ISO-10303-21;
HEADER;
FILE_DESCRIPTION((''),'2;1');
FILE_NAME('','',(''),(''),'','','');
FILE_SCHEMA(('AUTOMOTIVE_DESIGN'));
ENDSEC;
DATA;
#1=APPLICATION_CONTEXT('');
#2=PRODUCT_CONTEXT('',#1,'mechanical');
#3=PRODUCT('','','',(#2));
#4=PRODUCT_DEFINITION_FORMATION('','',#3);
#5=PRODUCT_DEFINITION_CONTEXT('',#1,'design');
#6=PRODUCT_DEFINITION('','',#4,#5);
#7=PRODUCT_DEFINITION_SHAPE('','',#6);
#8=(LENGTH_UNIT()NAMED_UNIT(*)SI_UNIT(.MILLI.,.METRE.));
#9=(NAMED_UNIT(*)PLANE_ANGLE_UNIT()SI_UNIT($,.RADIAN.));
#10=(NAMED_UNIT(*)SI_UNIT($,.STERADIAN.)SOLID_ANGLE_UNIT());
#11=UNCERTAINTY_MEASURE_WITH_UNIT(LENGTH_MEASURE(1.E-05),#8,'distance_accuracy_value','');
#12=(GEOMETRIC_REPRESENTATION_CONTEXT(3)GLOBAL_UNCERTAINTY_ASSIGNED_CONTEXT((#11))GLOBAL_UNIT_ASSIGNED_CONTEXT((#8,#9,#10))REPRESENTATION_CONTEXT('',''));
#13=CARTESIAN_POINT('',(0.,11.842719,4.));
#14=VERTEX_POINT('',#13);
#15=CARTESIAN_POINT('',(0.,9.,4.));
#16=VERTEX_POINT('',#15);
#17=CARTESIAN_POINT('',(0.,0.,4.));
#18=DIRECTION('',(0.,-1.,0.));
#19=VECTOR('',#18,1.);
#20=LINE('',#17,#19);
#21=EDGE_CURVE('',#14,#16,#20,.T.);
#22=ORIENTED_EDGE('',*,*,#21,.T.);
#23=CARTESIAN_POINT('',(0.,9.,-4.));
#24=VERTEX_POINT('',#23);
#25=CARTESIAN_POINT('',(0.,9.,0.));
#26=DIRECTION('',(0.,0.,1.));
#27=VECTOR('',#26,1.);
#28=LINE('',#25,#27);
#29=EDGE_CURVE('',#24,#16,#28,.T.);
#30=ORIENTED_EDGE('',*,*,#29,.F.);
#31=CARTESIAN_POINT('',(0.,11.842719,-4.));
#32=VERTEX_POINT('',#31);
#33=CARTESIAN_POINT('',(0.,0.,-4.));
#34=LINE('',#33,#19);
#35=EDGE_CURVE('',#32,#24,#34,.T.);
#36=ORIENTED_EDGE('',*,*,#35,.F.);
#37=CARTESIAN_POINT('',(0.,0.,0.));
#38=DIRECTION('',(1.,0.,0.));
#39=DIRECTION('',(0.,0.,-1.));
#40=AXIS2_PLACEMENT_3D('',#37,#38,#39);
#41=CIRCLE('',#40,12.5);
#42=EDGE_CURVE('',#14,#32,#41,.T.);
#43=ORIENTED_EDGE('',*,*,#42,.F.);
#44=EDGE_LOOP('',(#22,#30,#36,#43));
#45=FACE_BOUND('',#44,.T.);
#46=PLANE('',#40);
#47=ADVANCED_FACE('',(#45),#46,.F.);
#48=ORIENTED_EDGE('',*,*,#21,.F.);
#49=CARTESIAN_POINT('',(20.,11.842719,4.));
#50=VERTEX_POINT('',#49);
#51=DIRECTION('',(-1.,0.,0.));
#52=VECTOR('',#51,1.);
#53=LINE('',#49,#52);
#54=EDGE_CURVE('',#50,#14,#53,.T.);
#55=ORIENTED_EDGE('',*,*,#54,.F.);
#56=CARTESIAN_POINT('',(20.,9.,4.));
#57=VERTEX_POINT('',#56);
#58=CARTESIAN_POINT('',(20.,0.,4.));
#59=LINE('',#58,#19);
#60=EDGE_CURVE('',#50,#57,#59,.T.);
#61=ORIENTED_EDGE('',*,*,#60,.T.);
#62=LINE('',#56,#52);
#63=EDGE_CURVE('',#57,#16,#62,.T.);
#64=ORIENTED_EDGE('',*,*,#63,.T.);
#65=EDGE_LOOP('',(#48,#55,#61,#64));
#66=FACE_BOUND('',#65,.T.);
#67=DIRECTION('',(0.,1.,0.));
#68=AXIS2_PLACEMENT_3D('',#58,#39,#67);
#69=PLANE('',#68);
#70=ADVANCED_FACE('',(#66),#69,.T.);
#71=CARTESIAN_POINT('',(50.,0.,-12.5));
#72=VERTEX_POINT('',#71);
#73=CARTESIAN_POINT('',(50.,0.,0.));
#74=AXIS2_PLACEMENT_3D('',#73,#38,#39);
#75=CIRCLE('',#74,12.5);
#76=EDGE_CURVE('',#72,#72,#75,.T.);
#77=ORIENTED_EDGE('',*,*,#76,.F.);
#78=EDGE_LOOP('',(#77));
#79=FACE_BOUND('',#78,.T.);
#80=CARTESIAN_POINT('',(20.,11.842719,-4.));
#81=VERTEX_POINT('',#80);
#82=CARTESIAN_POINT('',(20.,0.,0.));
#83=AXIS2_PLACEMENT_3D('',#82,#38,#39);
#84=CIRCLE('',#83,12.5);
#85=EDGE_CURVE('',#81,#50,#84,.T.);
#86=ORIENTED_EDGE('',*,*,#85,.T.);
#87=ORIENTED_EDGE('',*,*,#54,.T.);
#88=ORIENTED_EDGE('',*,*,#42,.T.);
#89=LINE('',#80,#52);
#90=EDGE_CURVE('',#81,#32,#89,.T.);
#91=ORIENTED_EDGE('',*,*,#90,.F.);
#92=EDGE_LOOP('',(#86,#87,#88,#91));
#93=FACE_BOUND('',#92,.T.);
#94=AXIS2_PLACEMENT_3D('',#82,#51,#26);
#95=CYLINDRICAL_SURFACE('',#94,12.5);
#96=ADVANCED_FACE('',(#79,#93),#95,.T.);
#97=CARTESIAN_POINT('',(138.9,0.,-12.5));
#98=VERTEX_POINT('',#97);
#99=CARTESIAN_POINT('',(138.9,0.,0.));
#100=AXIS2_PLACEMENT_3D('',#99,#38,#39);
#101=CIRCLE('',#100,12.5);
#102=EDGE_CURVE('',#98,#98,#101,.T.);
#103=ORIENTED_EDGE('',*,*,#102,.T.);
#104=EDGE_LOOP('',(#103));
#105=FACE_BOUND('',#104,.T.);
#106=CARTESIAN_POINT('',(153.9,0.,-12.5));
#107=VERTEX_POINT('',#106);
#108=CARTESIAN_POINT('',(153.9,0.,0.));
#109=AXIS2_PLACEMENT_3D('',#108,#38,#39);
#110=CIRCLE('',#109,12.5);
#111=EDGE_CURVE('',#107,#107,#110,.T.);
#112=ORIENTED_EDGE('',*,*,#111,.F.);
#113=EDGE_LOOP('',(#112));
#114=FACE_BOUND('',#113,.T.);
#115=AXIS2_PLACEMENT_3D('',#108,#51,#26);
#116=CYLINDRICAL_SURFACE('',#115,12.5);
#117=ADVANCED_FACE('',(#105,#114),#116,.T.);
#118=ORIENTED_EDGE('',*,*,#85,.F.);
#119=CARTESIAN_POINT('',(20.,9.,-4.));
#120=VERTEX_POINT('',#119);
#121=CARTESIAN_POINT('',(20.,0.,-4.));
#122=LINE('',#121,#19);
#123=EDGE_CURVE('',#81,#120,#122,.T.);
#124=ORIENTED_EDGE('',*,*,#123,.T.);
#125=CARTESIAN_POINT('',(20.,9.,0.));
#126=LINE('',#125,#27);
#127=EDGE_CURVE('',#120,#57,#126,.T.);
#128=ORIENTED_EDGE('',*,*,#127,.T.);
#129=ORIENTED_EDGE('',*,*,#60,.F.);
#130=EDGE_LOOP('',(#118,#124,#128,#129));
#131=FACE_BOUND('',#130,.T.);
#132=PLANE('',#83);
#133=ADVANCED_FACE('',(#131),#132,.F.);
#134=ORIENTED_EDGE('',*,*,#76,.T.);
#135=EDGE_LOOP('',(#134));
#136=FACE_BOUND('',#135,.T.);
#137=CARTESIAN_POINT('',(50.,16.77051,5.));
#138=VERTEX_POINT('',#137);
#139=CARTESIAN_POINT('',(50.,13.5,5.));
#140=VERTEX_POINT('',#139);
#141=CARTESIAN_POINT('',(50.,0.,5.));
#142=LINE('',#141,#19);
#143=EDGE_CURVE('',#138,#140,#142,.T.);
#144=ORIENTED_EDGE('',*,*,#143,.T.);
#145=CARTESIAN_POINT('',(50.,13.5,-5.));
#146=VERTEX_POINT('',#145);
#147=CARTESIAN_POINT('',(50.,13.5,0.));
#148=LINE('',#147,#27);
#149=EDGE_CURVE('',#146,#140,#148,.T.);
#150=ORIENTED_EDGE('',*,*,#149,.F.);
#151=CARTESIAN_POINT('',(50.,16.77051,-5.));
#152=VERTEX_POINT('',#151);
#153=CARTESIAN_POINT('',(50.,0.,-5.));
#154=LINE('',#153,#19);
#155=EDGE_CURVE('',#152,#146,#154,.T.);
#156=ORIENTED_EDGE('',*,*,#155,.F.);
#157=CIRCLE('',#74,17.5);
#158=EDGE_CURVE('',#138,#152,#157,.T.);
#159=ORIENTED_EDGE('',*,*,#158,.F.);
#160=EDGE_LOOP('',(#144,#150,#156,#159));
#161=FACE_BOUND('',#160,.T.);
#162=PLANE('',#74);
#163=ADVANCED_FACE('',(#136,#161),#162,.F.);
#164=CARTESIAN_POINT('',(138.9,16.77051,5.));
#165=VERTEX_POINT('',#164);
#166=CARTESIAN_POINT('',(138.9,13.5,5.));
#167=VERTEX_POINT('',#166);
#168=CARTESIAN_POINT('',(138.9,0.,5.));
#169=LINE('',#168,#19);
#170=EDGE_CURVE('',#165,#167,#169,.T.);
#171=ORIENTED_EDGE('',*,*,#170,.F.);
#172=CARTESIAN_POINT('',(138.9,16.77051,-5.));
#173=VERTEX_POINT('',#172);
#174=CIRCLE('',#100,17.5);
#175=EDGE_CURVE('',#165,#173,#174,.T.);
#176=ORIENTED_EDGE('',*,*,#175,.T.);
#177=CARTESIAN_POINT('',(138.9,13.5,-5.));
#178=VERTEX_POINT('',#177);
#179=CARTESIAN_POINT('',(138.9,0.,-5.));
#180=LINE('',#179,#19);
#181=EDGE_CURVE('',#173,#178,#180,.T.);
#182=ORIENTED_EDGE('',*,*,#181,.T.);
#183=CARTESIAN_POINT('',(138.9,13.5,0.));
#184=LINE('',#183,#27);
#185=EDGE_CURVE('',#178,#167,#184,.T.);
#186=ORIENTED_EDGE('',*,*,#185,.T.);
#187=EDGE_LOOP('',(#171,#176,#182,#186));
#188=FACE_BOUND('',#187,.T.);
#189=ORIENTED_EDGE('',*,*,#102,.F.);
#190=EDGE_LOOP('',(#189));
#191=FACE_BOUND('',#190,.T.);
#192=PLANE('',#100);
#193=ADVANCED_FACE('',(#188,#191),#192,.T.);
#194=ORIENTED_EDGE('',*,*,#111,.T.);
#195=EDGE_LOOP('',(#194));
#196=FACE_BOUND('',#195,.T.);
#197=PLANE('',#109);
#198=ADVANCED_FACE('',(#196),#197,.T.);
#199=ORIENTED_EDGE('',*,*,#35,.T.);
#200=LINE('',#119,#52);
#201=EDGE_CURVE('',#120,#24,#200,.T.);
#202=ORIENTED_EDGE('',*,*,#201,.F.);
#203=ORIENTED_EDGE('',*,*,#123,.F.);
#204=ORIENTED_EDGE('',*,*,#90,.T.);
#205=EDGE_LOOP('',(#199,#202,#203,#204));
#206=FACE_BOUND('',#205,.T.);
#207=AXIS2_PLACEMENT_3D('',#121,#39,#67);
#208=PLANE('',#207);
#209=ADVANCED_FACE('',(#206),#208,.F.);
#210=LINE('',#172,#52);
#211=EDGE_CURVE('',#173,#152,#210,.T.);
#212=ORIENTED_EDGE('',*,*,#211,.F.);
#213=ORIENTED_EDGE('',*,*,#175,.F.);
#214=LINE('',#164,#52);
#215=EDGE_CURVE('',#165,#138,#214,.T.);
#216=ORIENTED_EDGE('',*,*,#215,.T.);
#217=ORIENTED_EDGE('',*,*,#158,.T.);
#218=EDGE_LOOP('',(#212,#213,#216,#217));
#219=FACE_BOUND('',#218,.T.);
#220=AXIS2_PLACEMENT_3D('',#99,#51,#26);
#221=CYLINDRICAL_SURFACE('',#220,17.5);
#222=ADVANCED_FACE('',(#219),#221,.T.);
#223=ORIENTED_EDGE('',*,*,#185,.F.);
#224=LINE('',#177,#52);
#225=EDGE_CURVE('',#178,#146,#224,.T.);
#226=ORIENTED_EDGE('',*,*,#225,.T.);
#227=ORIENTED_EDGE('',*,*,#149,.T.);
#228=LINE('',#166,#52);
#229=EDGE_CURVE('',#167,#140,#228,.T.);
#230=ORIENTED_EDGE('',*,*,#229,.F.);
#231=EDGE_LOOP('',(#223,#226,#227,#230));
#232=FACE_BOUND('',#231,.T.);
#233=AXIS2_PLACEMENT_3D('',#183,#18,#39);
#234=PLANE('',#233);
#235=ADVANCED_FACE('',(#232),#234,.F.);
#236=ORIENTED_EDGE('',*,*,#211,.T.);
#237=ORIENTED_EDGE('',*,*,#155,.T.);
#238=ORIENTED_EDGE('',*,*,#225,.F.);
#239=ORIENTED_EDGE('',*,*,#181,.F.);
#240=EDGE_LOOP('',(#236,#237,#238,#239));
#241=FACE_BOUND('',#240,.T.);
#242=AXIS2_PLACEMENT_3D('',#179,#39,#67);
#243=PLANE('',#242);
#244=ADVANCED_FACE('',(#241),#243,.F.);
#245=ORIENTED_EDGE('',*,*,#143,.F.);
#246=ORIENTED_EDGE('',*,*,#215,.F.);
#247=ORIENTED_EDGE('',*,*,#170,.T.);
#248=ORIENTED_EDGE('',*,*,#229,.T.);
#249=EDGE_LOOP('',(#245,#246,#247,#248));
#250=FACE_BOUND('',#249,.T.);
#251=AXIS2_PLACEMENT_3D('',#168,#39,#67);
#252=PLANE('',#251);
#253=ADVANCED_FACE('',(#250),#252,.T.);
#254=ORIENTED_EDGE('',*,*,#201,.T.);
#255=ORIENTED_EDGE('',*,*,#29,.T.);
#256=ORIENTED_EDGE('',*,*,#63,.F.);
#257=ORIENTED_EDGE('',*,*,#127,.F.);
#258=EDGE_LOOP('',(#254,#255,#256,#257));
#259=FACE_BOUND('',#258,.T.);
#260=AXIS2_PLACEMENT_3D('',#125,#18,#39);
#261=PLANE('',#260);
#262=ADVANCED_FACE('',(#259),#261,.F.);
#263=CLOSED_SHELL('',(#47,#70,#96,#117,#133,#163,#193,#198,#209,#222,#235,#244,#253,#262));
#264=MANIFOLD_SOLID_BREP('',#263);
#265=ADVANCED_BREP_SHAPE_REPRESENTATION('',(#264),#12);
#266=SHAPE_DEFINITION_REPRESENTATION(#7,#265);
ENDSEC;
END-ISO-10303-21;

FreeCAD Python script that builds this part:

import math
import FreeCAD as App
import Part
import Sketcher
from FreeCAD import Vector

doc = App.newDocument("Part")
body = doc.addObject("PartDesign::Body", "Body")

sketch1 = doc.addObject("Sketcher::SketchObject", "Sketch")
body.addObject(sketch1)
sketch1.AttachmentSupport = (doc.YZ_Plane, [""])
sketch1.MapMode = "FlatFace"
sketch1.addGeometry([
    Part.ArcOfCircle(Part.Circle(Vector(0, 0, 0), Vector(0, 0, 1), 12.5), math.radians(-90), math.radians(-19)),
    Part.LineSegment(Vector(11.8, -4, 0), Vector(9, -4, 0)),
    Part.LineSegment(Vector(9, -4, 0), Vector(9, 4, 0)),
    Part.LineSegment(Vector(9, 4, 0), Vector(11.8, 4, 0)),
    Part.ArcOfCircle(Part.Circle(Vector(0, 0, 0), Vector(0, 0, 1), 12.5), math.radians(19), math.radians(270)),
], False)
sketch1.addConstraint([
    Sketcher.Constraint("Coincident", 0, 2, 1, 1),
    Sketcher.Constraint("Coincident", 1, 2, 2, 1),
    Sketcher.Constraint("Coincident", 2, 2, 3, 1),
    Sketcher.Constraint("Coincident", 3, 2, 4, 1),
    Sketcher.Constraint("Tangent", 4, 2, 0, 1),
    Sketcher.Constraint("Horizontal", 1),
    Sketcher.Constraint("Vertical", 2),
    Sketcher.Constraint("Horizontal", 3),
    Sketcher.Constraint("Coincident", 0, 3, -1, 1),
    Sketcher.Constraint("Equal", 0, 4),
    Sketcher.Constraint("PointOnObject", 4, 2, -2),
    Sketcher.Constraint("Vertical", 0, 2, 3, 2),
    Sketcher.Constraint("Radius", 0, 12.5),
    Sketcher.Constraint("DistanceY", 2, 1, 2, 2, 8.0),
    Sketcher.Constraint("DistanceX", -1, 1, 1, 2, 9.0),
])
pad1 = doc.addObject("PartDesign::Pad", "Pad")
body.addObject(pad1)
pad1.Profile = sketch1
pad1.Length = 20

sketch2 = doc.addObject("Sketcher::SketchObject", "Sketch001")
body.addObject(sketch2)
sketch2.AttachmentSupport = (doc.YZ_Plane, [""])
sketch2.MapMode = "FlatFace"
sketch2.AttachmentOffset = App.Placement(Vector(0, 0, 20), App.Rotation())
sketch2.addGeometry(Part.Circle(Vector(0, 0, 0), Vector(0, 0, 1), 12), False)
sketch2.addConstraint([
    Sketcher.Constraint("Coincident", 0, 3, -1, 1),
    Sketcher.Constraint("Diameter", 0, 25.0),
])
pad2 = doc.addObject("PartDesign::Pad", "Pad001")
body.addObject(pad2)
pad2.Profile = sketch2
pad2.Length = 10

sketch3 = doc.addObject("Sketcher::SketchObject", "Sketch002")
body.addObject(sketch3)
sketch3.AttachmentSupport = (doc.YZ_Plane, [""])
sketch3.MapMode = "FlatFace"
sketch3.AttachmentOffset = App.Placement(Vector(0, 0, 30), App.Rotation())
sketch3.addGeometry(Part.Circle(Vector(0, 0, 0), Vector(0, 0, 1), 12), False)
sketch3.addConstraint([
    Sketcher.Constraint("Coincident", 0, 3, -1, 1),
    Sketcher.Constraint("Diameter", 0, 25.0),
])
pad3 = doc.addObject("PartDesign::Pad", "Pad002")
body.addObject(pad3)
pad3.Profile = sketch3
pad3.Length = 20

sketch4 = doc.addObject("Sketcher::SketchObject", "Sketch003")
body.addObject(sketch4)
sketch4.AttachmentSupport = (doc.YZ_Plane, [""])
sketch4.MapMode = "FlatFace"
sketch4.AttachmentOffset = App.Placement(Vector(0, 0, 50), App.Rotation())
sketch4.addGeometry([
    Part.ArcOfCircle(Part.Circle(Vector(0, 0, 0), Vector(0, 0, 1), 17.5), math.radians(-90), math.radians(-17)),
    Part.LineSegment(Vector(16.8, -5, 0), Vector(13.5, -5, 0)),
    Part.LineSegment(Vector(13.5, -5, 0), Vector(13.5, 5, 0)),
    Part.LineSegment(Vector(13.5, 5, 0), Vector(16.8, 5, 0)),
    Part.ArcOfCircle(Part.Circle(Vector(0, 0, 0), Vector(0, 0, 1), 17.5), math.radians(17), math.radians(270)),
], False)
sketch4.addConstraint([
    Sketcher.Constraint("Coincident", 0, 2, 1, 1),
    Sketcher.Constraint("Coincident", 1, 2, 2, 1),
    Sketcher.Constraint("Coincident", 2, 2, 3, 1),
    Sketcher.Constraint("Coincident", 3, 2, 4, 1),
    Sketcher.Constraint("Tangent", 4, 2, 0, 1),
    Sketcher.Constraint("Horizontal", 1),
    Sketcher.Constraint("Vertical", 2),
    Sketcher.Constraint("Horizontal", 3),
    Sketcher.Constraint("Coincident", 0, 3, -1, 1),
    Sketcher.Constraint("Equal", 0, 4),
    Sketcher.Constraint("PointOnObject", 4, 2, -2),
    Sketcher.Constraint("Vertical", 0, 2, 3, 2),
    Sketcher.Constraint("Radius", 0, 17.5),
    Sketcher.Constraint("DistanceY", 2, 1, 2, 2, 10.0),
    Sketcher.Constraint("DistanceX", -1, 1, 1, 2, 13.5),
])
pad4 = doc.addObject("PartDesign::Pad", "Pad003")
body.addObject(pad4)
pad4.Profile = sketch4
pad4.Length = 88.9

sketch5 = doc.addObject("Sketcher::SketchObject", "Sketch004")
body.addObject(sketch5)
sketch5.AttachmentSupport = (doc.YZ_Plane, [""])
sketch5.MapMode = "FlatFace"
sketch5.AttachmentOffset = App.Placement(Vector(0, 0, 138.9), App.Rotation())
sketch5.addGeometry(Part.Circle(Vector(0, 0, 0), Vector(0, 0, 1), 12), False)
sketch5.addConstraint([
    Sketcher.Constraint("Coincident", 0, 3, -1, 1),
    Sketcher.Constraint("Diameter", 0, 25.0),
])
pad5 = doc.addObject("PartDesign::Pad", "Pad004")
body.addObject(pad5)
pad5.Profile = sketch5
pad5.Length = 15

doc.recompute()
